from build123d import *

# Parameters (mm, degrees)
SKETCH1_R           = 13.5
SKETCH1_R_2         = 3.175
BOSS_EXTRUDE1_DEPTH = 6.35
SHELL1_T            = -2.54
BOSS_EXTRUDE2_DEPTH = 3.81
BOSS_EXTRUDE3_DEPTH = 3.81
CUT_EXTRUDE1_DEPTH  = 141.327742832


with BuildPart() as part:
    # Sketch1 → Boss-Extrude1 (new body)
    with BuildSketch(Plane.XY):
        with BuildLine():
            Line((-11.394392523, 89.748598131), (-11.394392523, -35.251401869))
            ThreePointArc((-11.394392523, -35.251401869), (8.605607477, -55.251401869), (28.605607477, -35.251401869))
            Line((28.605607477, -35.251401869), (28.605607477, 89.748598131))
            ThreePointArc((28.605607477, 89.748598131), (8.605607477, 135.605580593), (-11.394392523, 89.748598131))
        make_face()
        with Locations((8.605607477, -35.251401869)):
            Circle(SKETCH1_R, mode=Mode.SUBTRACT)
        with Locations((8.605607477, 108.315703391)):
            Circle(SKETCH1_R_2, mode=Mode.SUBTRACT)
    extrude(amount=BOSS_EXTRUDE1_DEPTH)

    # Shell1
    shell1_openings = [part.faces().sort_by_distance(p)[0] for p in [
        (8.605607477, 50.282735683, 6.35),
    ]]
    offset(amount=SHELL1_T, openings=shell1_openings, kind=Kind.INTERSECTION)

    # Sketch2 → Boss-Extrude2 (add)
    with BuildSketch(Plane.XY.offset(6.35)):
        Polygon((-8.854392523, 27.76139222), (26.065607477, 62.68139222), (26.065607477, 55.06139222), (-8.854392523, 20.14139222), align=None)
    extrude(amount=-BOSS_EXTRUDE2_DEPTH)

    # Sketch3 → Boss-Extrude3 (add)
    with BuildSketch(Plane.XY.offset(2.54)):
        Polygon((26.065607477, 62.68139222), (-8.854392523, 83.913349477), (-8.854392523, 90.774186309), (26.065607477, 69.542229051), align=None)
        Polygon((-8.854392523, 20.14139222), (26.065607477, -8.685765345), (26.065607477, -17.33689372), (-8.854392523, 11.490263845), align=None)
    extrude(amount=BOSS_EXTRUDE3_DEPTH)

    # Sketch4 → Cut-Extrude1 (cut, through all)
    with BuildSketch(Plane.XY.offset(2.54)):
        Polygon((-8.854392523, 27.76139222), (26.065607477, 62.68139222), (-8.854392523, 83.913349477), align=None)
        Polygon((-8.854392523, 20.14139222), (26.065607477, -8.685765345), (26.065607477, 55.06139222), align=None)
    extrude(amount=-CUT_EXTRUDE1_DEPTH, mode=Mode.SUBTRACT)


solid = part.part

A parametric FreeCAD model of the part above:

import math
import FreeCAD as App
import Part
import Sketcher

V = App.Vector
Q = App.Units.Quantity


def faces_at(feature, points):
    """Names of the faces that lie closest to the given points."""
    faces = feature.Shape.Faces
    near = lambda p: min(range(len(faces)), key=lambda i: faces[i].distToShape(Part.Vertex(*p))[0])
    return sorted({f"Face{near(p) + 1}" for p in points})

doc = App.newDocument("Part")
body = doc.addObject("PartDesign::Body", "Body")

sketch1 = body.newObject("Sketcher::SketchObject", "Sketch")
sketch1.AttachmentSupport = (doc.getObject("XY_Plane"), [""])
sketch1.MapMode = "FlatFace"
sketch1.addGeometry(Part.LineSegment(V(-11.4, 89.7, 0), V(-11.4, -35.3, 0)), False)
sketch1.addGeometry(Part.ArcOfCircle(Part.Circle(V(8.6, -35.3, 0), V(0, 0, 1), 20), math.radians(180), math.radians(360)), False)
sketch1.addGeometry(Part.LineSegment(V(28.6, -35.3, 0), V(28.6, 89.7, 0)), False)
sketch1.addGeometry(Part.ArcOfCircle(Part.Circle(V(8.6, 108.3, 0), V(0, 0, 1), 27.3), math.radians(-43), math.radians(223)), False)
sketch1.addGeometry(Part.Circle(V(8.6, -35.3, 0), V(0, 0, 1), 13.5), False)
sketch1.addGeometry(Part.Circle(V(8.6, 108.3, 0), V(0, 0, 1), 3.2), False)
sketch1.addConstraint(Sketcher.Constraint("Tangent", 0, 2, 1, 1))
sketch1.addConstraint(Sketcher.Constraint("Tangent", 1, 2, 2, 1))
sketch1.addConstraint(Sketcher.Constraint("Coincident", 2, 2, 3, 1))
sketch1.addConstraint(Sketcher.Constraint("Coincident", 3, 2, 0, 1))
sketch1.addConstraint(Sketcher.Constraint("Vertical", 0))
sketch1.addConstraint(Sketcher.Constraint("Vertical", 2))
sketch1.addConstraint(Sketcher.Constraint("Coincident", 4, 3, 1, 3))
sketch1.addConstraint(Sketcher.Constraint("Coincident", 5, 3, 3, 3))
sketch1.addConstraint(Sketcher.Constraint("Horizontal", 2, 2, 3, 2))
sketch1.addConstraint(Sketcher.Constraint("Diameter", 5, Q("0.25 in")))
sketch1.addConstraint(Sketcher.Constraint("Diameter", 4, 27.0))
sketch1.addConstraint(Sketcher.Constraint("Radius", 1, 20.0))
sketch1.addConstraint(Sketcher.Constraint("DistanceY", 0, 2, 0, 1, 125.0))
sketch1.addConstraint(Sketcher.Constraint("Radius", 3, 27.289877))
sketch1.addConstraint(Sketcher.Constraint("DistanceY", 1, 3, -1, 1, 35.251402))
sketch1.addConstraint(Sketcher.Constraint("DistanceX", -1, 1, 1, 3, 8.605607))
pad1 = body.newObject("PartDesign::Pad", "Pad")
pad1.Profile = sketch1
pad1.Length = Q("0.25 in")
doc.recompute()

thickness = body.newObject("PartDesign::Thickness", "Thickness")
thickness.Base = (pad1, faces_at(pad1, [(8.606, 40.177, 6.35)]))
thickness.Value = Q("0.1 in")
thickness.Reversed = True
thickness.Join = "Intersection"

sketch2 = body.newObject("Sketcher::SketchObject", "Sketch001")
sketch2.AttachmentSupport = (doc.getObject("XY_Plane"), [""])
sketch2.MapMode = "FlatFace"
sketch2.AttachmentOffset = App.Placement(V(0, 0, 0.25 * 25.4), App.Rotation())
sketch2.addGeometry(Part.LineSegment(V(26, 63, 0), V(-9, 28, 0)), False)
sketch2.addGeometry(Part.LineSegment(V(-9, 28, 0), V(-9, 20, 0)), False)
sketch2.addGeometry(Part.LineSegment(V(-9, 20, 0), V(26, 55, 0)), False)
sketch2.addGeometry(Part.LineSegment(V(26, 55, 0), V(26, 63, 0)), False)
sketch2.addConstraint(Sketcher.Constraint("Coincident", 0, 2, 1, 1))
sketch2.addConstraint(Sketcher.Constraint("Coincident", 1, 2, 2, 1))
sketch2.addConstraint(Sketcher.Constraint("Coincident", 2, 2, 3, 1))
sketch2.addConstraint(Sketcher.Constraint("Coincident", 3, 2, 0, 1))
sketch2.addConstraint(Sketcher.Constraint("Vertical", 1))
sketch2.addConstraint(Sketcher.Constraint("Vertical", 3))
sketch2.addConstraint(Sketcher.Constraint("Parallel", 0, 2))
sketch2.addConstraint(Sketcher.Constraint("DistanceY", 1, 2, 1, 1, Q("0.3 in")))
sketch2.addConstraint(Sketcher.Constraint("Angle", 0, Q("-135 deg")))
sketch2.addConstraint(Sketcher.Constraint("DistanceX", 0, 2, 2, 2, 34.92))
sketch2.addConstraint(Sketcher.Constraint("DistanceX", 0, 2, -1, 1, 8.854393))
sketch2.addConstraint(Sketcher.Constraint("DistanceY", -1, 1, 0, 2, 27.761392))
pad2 = body.newObject("PartDesign::Pad", "Pad001")
pad2.Profile = sketch2
pad2.Length = Q("0.15 in")
pad2.Reversed = True

sketch3 = body.newObject("Sketcher::SketchObject", "Sketch002")
sketch3.AttachmentSupport = (doc.getObject("XY_Plane"), [""])
sketch3.MapMode = "FlatFace"
sketch3.AttachmentOffset = App.Placement(V(0, 0, 0.1 * 25.4), App.Rotation())
sketch3.addGeometry(Part.LineSegment(V(-9, 84, 0), V(26, 63, 0)), False)
sketch3.addGeometry(Part.LineSegment(V(26, 63, 0), V(26, 70, 0)), False)
sketch3.addGeometry(Part.LineSegment(V(26, 70, 0), V(-9, 91, 0)), False)
sketch3.addGeometry(Part.LineSegment(V(-9, 91, 0), V(-9, 84, 0)), False)
sketch3.addGeometry(Part.LineSegment(V(26, -9, 0), V(-9, 20, 0)), False)
sketch3.addGeometry(Part.LineSegment(V(-9, 20, 0), V(-9, 11, 0)), False)
sketch3.addGeometry(Part.LineSegment(V(-9, 11, 0), V(26, -17, 0)), False)
sketch3.addGeometry(Part.LineSegment(V(26, -17, 0), V(26, -9, 0)), False)
sketch3.addConstraint(Sketcher.Constraint("Coincident", 0, 2, 1, 1))
sketch3.addConstraint(Sketcher.Constraint("Coincident", 1, 2, 2, 1))
sketch3.addConstraint(Sketcher.Constraint("Coincident", 2, 2, 3, 1))
sketch3.addConstraint(Sketcher.Constraint("Coincident", 3, 2, 0, 1))
sketch3.addConstraint(Sketcher.Constraint("Coincident", 4, 2, 5, 1))
sketch3.addConstraint(Sketcher.Constraint("Coincident", 5, 2, 6, 1))
sketch3.addConstraint(Sketcher.Constraint("Coincident", 6, 2, 7, 1))
sketch3.addConstraint(Sketcher.Constraint("Coincident", 7, 2, 4, 1))
sketch3.addConstraint(Sketcher.Constraint("Vertical", 1))
sketch3.addConstraint(Sketcher.Constraint("Vertical", 3))
sketch3.addConstraint(Sketcher.Constraint("Vertical", 5))
sketch3.addConstraint(Sketcher.Constraint("Vertical", 7))
sketch3.addConstraint(Sketcher.Constraint("Parallel", 0, 2))
sketch3.addConstraint(Sketcher.Constraint("Parallel", 4, 6))
sketch3.addConstraint(Sketcher.Constraint("Vertical", 3, 2, 4, 2))
sketch3.addConstraint(Sketcher.Constraint("Vertical", 1, 2, 6, 2))
sketch3.addConstraint(Sketcher.Constraint("DistanceY", 5, 2, 5, 1, 8.651128))
sketch3.addConstraint(Sketcher.Constraint("DistanceX", 2, 2, 1, 2, 34.92))
sketch3.addConstraint(Sketcher.Constraint("DistanceY", 4, 2, 0, 2, 42.54))
sketch3.addConstraint(Sketcher.Constraint("Distance", 0, 40.86811))
sketch3.addConstraint(Sketcher.Constraint("Distance", 4, 45.281469))
sketch3.addConstraint(Sketcher.Constraint("DistanceY", 1, 1, 1, 2, 6.860837))
sketch3.addConstraint(Sketcher.Constraint("DistanceY", -1, 1, 1, 2, 69.542229))
sketch3.addConstraint(Sketcher.Constraint("DistanceX", -1, 1, 0, 2, 26.065607))
pad3 = body.newObject("PartDesign::Pad", "Pad002")
pad3.Profile = sketch3
pad3.Length = Q("0.15 in")

sketch4 = body.newObject("Sketcher::SketchObject", "Sketch003")
sketch4.AttachmentSupport = (doc.getObject("XY_Plane"), [""])
sketch4.MapMode = "FlatFace"
sketch4.AttachmentOffset = App.Placement(V(0, 0, 0.1 * 25.4), App.Rotation())
sketch4.addGeometry(Part.LineSegment(V(-9, 28, 0), V(26, 63, 0)), False)
sketch4.addGeometry(Part.LineSegment(V(26, 63, 0), V(-9, 84, 0)), False)
sketch4.addGeometry(Part.LineSegment(V(-9, 84, 0), V(-9, 28, 0)), False)
sketch4.addGeometry(Part.LineSegment(V(-9, 20, 0), V(26, -9, 0)), False)
sketch4.addGeometry(Part.LineSegment(V(26, -9, 0), V(26, 55, 0)), False)
sketch4.addGeometry(Part.LineSegment(V(26, 55, 0), V(-9, 20, 0)), False)
sketch4.addConstraint(Sketcher.Constraint("Coincident", 0, 2, 1, 1))
sketch4.addConstraint(Sketcher.Constraint("Coincident", 1, 2, 2, 1))
sketch4.addConstraint(Sketcher.Constraint("Coincident", 2, 2, 0, 1))
sketch4.addConstraint(Sketcher.Constraint("Coincident", 3, 2, 4, 1))
sketch4.addConstraint(Sketcher.Constraint("Coincident", 4, 2, 5, 1))
sketch4.addConstraint(Sketcher.Constraint("Coincident", 5, 2, 3, 1))
sketch4.addConstraint(Sketcher.Constraint("Vertical", 2))
sketch4.addConstraint(Sketcher.Constraint("Vertical", 4))
sketch4.addConstraint(Sketcher.Constraint("Parallel", 0, 5))
sketch4.addConstraint(Sketcher.Constraint("Vertical", 0, 2, 3, 2))
sketch4.addConstraint(Sketcher.Constraint("Vertical", 2, 2, 5, 2))
sketch4.addConstraint(Sketcher.Constraint("Angle", 0, Q("45 deg")))
sketch4.addConstraint(Sketcher.Constraint("DistanceY", 4, 2, 0, 2, Q("0.3 in")))
sketch4.addConstraint(Sketcher.Constraint("DistanceX", 1, 2, 0, 2, 34.92))
sketch4.addConstraint(Sketcher.Constraint("Distance", 1, 40.86811))
sketch4.addConstraint(Sketcher.Constraint("Distance", 3, 45.281469))
sketch4.addConstraint(Sketcher.Constraint("DistanceY", -1, 1, 1, 2, 83.913349))
sketch4.addConstraint(Sketcher.Constraint("DistanceX", -1, 1, 0, 2, 26.065607))
pocket1 = body.newObject("PartDesign::Pocket", "Pocket")
pocket1.Profile = sketch4
pocket1.Type = "ThroughAll"

doc.recompute()
